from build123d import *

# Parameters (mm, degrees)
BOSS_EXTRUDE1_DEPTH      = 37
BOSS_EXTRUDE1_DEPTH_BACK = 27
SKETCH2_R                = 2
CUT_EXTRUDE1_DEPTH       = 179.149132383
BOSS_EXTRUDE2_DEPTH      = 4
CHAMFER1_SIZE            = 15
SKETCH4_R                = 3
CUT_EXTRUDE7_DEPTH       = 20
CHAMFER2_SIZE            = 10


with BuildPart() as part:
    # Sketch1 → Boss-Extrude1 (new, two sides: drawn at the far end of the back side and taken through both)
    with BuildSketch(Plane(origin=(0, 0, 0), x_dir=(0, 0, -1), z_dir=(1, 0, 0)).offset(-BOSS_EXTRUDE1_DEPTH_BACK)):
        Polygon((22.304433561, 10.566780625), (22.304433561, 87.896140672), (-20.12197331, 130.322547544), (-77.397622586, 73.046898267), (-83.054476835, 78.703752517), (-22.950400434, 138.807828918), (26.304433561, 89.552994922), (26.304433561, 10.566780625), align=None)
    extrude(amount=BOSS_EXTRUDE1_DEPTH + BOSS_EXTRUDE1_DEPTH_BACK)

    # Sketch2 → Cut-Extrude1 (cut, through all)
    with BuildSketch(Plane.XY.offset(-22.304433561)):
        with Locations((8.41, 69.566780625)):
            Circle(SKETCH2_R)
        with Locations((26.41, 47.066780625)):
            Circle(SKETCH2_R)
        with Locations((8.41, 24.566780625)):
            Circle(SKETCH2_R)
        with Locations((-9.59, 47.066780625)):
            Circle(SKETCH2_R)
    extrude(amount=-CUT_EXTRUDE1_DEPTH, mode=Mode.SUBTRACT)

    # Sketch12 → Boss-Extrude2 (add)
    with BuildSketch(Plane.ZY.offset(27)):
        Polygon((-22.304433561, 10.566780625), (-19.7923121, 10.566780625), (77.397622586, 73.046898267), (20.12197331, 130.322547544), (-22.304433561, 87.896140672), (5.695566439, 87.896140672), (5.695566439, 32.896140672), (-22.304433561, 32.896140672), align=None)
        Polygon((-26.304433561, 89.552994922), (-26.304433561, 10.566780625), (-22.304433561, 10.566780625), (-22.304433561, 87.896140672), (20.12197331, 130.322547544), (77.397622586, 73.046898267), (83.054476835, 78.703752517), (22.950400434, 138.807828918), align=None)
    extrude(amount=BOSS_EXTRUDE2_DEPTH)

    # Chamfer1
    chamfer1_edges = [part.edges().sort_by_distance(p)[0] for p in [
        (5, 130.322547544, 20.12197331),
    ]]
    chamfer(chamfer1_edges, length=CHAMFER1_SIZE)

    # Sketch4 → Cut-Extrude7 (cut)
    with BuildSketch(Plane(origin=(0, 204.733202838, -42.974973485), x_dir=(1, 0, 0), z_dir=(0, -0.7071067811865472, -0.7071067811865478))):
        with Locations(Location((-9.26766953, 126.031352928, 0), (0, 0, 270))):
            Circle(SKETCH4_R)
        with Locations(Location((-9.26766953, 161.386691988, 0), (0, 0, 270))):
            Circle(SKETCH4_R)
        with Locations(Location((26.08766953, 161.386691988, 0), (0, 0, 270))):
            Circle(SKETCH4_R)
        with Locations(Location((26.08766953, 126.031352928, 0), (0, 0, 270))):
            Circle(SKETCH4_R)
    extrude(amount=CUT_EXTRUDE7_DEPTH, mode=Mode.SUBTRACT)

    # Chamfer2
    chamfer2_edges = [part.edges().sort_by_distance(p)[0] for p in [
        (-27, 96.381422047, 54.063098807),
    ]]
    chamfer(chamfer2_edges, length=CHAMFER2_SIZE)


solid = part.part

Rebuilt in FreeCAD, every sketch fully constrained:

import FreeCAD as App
import Part
import Sketcher

V = App.Vector
Q = App.Units.Quantity


def edges_at(feature, points):
    """Names of the edges that pass closest to the given points."""
    edges = feature.Shape.Edges
    near = lambda p: min(range(len(edges)), key=lambda i: edges[i].distToShape(Part.Vertex(*p))[0])
    return sorted({f"Edge{near(p) + 1}" for p in points})

doc = App.newDocument("Part")
params = doc.addObject("Spreadsheet::Sheet", "Params")
for row, (alias, value) in enumerate([
    ("sketch1_height", "4 mm"),
    ("sketch1_length", "85 mm"),
    ("sketch1_length2", "8 mm"),
    ("sketch1_length3", "81 mm"),
    ("sketch1_length4", "60 mm"),
    ("pad1_length", "37 mm"),
    ("pad1_length2", "27 mm"),
    ("sketch2_diameter", "4 mm"),
    ("sketch3_width", "55 mm"),
    ("sketch3_height", "28 mm"),
    ("sketch3_length", "8 mm"),
    ("sketch3_length2", "85 mm"),
    ("pad2_length", "4 mm"),
    ("chamfer_size", "15 mm"),
    ("sketch4_diameter", "6 mm"),
    ("pocket2_length", "20 mm"),
    ("chamfer2_size", "10 mm"),
], start=1):
    params.set(f"A{row}", alias)
    params.set(f"B{row}", "=" + value)
    params.setAlias(f"B{row}", alias)

body = doc.addObject("PartDesign::Body", "Body")

# Sketch on YZ plane
sketch1 = body.newObject("Sketcher::SketchObject", "Sketch")
sketch1.AttachmentSupport = (doc.getObject("YZ_Plane"), [""])
sketch1.MapMode = "FlatFace"
sketch1.addGeometry(Part.LineSegment(V(87.896141, -22.304434, 0), V(10.566781, -22.304434, 0)), False)
sketch1.addGeometry(Part.LineSegment(V(10.566781, -22.304434, 0), V(10.566781, -26.304434, 0)), False)
sketch1.addGeometry(Part.LineSegment(V(10.566781, -26.304434, 0), V(89.552995, -26.304434, 0)), False)
sketch1.addGeometry(Part.LineSegment(V(89.552995, -26.304434, 0), V(138.807829, 22.9504, 0)), False)
sketch1.addGeometry(Part.LineSegment(V(138.807829, 22.9504, 0), V(78.703753, 83.054477, 0)), False)
sketch1.addGeometry(Part.LineSegment(V(78.703753, 83.054477, 0), V(73.046898, 77.397623, 0)), False)
sketch1.addGeometry(Part.LineSegment(V(73.046898, 77.397623, 0), V(130.322548, 20.121973, 0)), False)
sketch1.addGeometry(Part.LineSegment(V(130.322548, 20.121973, 0), V(87.896141, -22.304434, 0)), False)
sketch1.addConstraint(Sketcher.Constraint("Coincident", 0, 2, 1, 1))
sketch1.addConstraint(Sketcher.Constraint("Coincident", 1, 2, 2, 1))
sketch1.addConstraint(Sketcher.Constraint("Coincident", 2, 2, 3, 1))
sketch1.addConstraint(Sketcher.Constraint("Coincident", 3, 2, 4, 1))
sketch1.addConstraint(Sketcher.Constraint("Coincident", 4, 2, 5, 1))
sketch1.addConstraint(Sketcher.Constraint("Coincident", 5, 2, 6, 1))
sketch1.addConstraint(Sketcher.Constraint("Coincident", 6, 2, 7, 1))
sketch1.addConstraint(Sketcher.Constraint("Coincident", 7, 2, 0, 1))
sketch1.addConstraint(Sketcher.Constraint("Horizontal", 0))
sketch1.addConstraint(Sketcher.Constraint("Vertical", 1))
sketch1.addConstraint(Sketcher.Constraint("Horizontal", 2))
sketch1.addConstraint(Sketcher.Constraint("Perpendicular", 3, 4))
sketch1.addConstraint(Sketcher.Constraint("Perpendicular", 4, 5))
sketch1.addConstraint(Sketcher.Constraint("Perpendicular", 5, 6))
sketch1.addConstraint(Sketcher.Constraint("Perpendicular", 6, 7))
sketch1.addConstraint(Sketcher.Constraint("DistanceY", 1, 2, 1, 1, Q("4 mm")))
sketch1.addConstraint(Sketcher.Constraint("Angle", 3, Q("45 deg")))
sketch1.addConstraint(Sketcher.Constraint("Distance", 4, Q("85 mm")))
sketch1.addConstraint(Sketcher.Constraint("Distance", 5, Q("8 mm")))
sketch1.addConstraint(Sketcher.Constraint("Distance", 6, Q("81 mm")))
sketch1.addConstraint(Sketcher.Constraint("Distance", 7, Q("60 mm")))
sketch1.addConstraint(Sketcher.Constraint("DistanceX", 0, 2, 0, 1, Q("77.32936 mm")))
sketch1.addConstraint(Sketcher.Constraint("DistanceY", -1, 1, 3, 2, Q("22.9504 mm")))
sketch1.addConstraint(Sketcher.Constraint("DistanceX", -1, 1, 5, 2, Q("73.046898 mm")))
sketch1.setExpression("Constraints[15]", "Params.sketch1_height")
sketch1.setExpression("Constraints[17]", "Params.sketch1_length")
sketch1.setExpression("Constraints[18]", "Params.sketch1_length2")
sketch1.setExpression("Constraints[19]", "Params.sketch1_length3")
sketch1.setExpression("Constraints[20]", "Params.sketch1_length4")
pad1 = body.newObject("PartDesign::Pad", "Pad")
pad1.Profile = sketch1
pad1.Type = "TwoLengths"
pad1.setExpression("Length", "Params.pad1_length")
pad1.setExpression("Length2", "Params.pad1_length2")

# Sketch on XY plane
sketch2 = body.newObject("Sketcher::SketchObject", "Sketch001")
sketch2.AttachmentSupport = (doc.getObject("XY_Plane"), [""])
sketch2.MapMode = "FlatFace"
sketch2.AttachmentOffset = App.Placement(V(0, 0, -22.304434), App.Rotation())
sketch2.addGeometry(Part.Circle(V(8.41, 69.566781, 0), V(0, 0, 1), 2), False)
sketch2.addGeometry(Part.Circle(V(26.41, 47.066781, 0), V(0, 0, 1), 2), False)
sketch2.addGeometry(Part.Circle(V(8.41, 24.566781, 0), V(0, 0, 1), 2), False)
sketch2.addGeometry(Part.Circle(V(-9.59, 47.066781, 0), V(0, 0, 1), 2), False)
sketch2.addConstraint(Sketcher.Constraint("Equal", 0, 1))
sketch2.addConstraint(Sketcher.Constraint("Equal", 1, 2))
sketch2.addConstraint(Sketcher.Constraint("Equal", 2, 3))
sketch2.addConstraint(Sketcher.Constraint("Horizontal", 1, 3, 3, 3))
sketch2.addConstraint(Sketcher.Constraint("Vertical", 0, 3, 2, 3))
sketch2.addConstraint(Sketcher.Constraint("Diameter", 0, Q("4 mm")))
sketch2.addConstraint(Sketcher.Constraint("DistanceX", 0, 3, 1, 3, Q("18 mm")))
sketch2.addConstraint(Sketcher.Constraint("DistanceY", 2, 3, 0, 3, Q("45 mm")))
sketch2.addConstraint(Sketcher.Constraint("DistanceX", 3, 3, 2, 3, Q("18 mm")))
sketch2.addConstraint(Sketcher.Constraint("DistanceY", 1, 3, 0, 3, Q("22.5 mm")))
sketch2.addConstraint(Sketcher.Constraint("DistanceX", -1, 1, 0, 3, Q("8.41 mm")))
sketch2.addConstraint(Sketcher.Constraint("DistanceY", -1, 1, 0, 3, Q("69.566781 mm")))
sketch2.setExpression("Constraints[5]", "Params.sketch2_diameter")
pocket1 = body.newObject("PartDesign::Pocket", "Pocket")
pocket1.Profile = sketch2
pocket1.Type = "ThroughAll"

# Sketch on YZ plane
sketch3 = body.newObject("Sketcher::SketchObject", "Sketch002")
sketch3.AttachmentSupport = (doc.getObject("YZ_Plane"), [""])
sketch3.MapMode = "FlatFace"
sketch3.AttachmentOffset = App.Placement(V(0, 0, -27), App.Rotation())
sketch3.addGeometry(Part.LineSegment(V(10.566781, -19.792312, 0), V(73.046898, 77.397623, 0)), False)
sketch3.addGeometry(Part.LineSegment(V(73.046898, 77.397623, 0), V(78.703753, 83.054477, 0)), False)
sketch3.addGeometry(Part.LineSegment(V(78.703753, 83.054477, 0), V(138.807829, 22.9504, 0)), False)
sketch3.addGeometry(Part.LineSegment(V(138.807829, 22.9504, 0), V(89.552995, -26.304434, 0)), False)
sketch3.addGeometry(Part.LineSegment(V(89.552995, -26.304434, 0), V(10.566781, -26.304434, 0)), False)
sketch3.addGeometry(Part.LineSegment(V(10.566781, -26.304434, 0), V(10.566781, -19.792312, 0)), False)
sketch3.addGeometry(Part.LineSegment(V(87.896141, -22.304434, 0), V(87.896141, 5.695566, 0)), False)
sketch3.addGeometry(Part.LineSegment(V(87.896141, 5.695566, 0), V(32.896141, 5.695566, 0)), False)
sketch3.addGeometry(Part.LineSegment(V(32.896141, 5.695566, 0), V(32.896141, -22.304434, 0)), False)
sketch3.addGeometry(Part.LineSegment(V(32.896141, -22.304434, 0), V(87.896141, -22.304434, 0)), False)
sketch3.addConstraint(Sketcher.Constraint("Coincident", 0, 2, 1, 1))
sketch3.addConstraint(Sketcher.Constraint("Coincident", 1, 2, 2, 1))
sketch3.addConstraint(Sketcher.Constraint("Coincident", 2, 2, 3, 1))
sketch3.addConstraint(Sketcher.Constraint("Coincident", 3, 2, 4, 1))
sketch3.addConstraint(Sketcher.Constraint("Coincident", 4, 2, 5, 1))
sketch3.addConstraint(Sketcher.Constraint("Coincident", 5, 2, 0, 1))
sketch3.addConstraint(Sketcher.Constraint("Coincident", 6, 2, 7, 1))
sketch3.addConstraint(Sketcher.Constraint("Coincident", 7, 2, 8, 1))
sketch3.addConstraint(Sketcher.Constraint("Coincident", 8, 2, 9, 1))
sketch3.addConstraint(Sketcher.Constraint("Coincident", 9, 2, 6, 1))
sketch3.addConstraint(Sketcher.Constraint("Horizontal", 4))
sketch3.addConstraint(Sketcher.Constraint("Vertical", 5))
sketch3.addConstraint(Sketcher.Constraint("Vertical", 6))
sketch3.addConstraint(Sketcher.Constraint("Horizontal", 7))
sketch3.addConstraint(Sketcher.Constraint("Vertical", 8))
sketch3.addConstraint(Sketcher.Constraint("Horizontal", 9))
sketch3.addConstraint(Sketcher.Constraint("Perpendicular", 1, 2))
sketch3.addConstraint(Sketcher.Constraint("Perpendicular", 2, 3))
sketch3.addConstraint(Sketcher.Constraint("DistanceX", 7, 2, 7, 1, Q("55 mm")))
sketch3.addConstraint(Sketcher.Constraint("DistanceY", 6, 1, 6, 2, Q("28 mm")))
sketch3.addConstraint(Sketcher.Constraint("Angle", 1, Q("45 deg")))
sketch3.addConstraint(Sketcher.Constraint("Distance", 1, Q("8 mm")))
sketch3.addConstraint(Sketcher.Constraint("Distance", 2, Q("85 mm")))
sketch3.addConstraint(Sketcher.Constraint("DistanceY", 3, 2, 6, 2, Q("32 mm")))
sketch3.addConstraint(Sketcher.Constraint("DistanceY", 5, 1, 5, 2, Q("6.512121 mm")))
sketch3.addConstraint(Sketcher.Constraint("DistanceX", -1, 1, 0, 2, Q("73.046898 mm")))
sketch3.addConstraint(Sketcher.Constraint("DistanceY", -1, 1, 2, 2, Q("22.9504 mm")))
sketch3.addConstraint(Sketcher.Constraint("Distance", 0, Q("115.540679 mm")))
sketch3.addConstraint(Sketcher.Constraint("DistanceX", 4, 2, 4, 1, Q("78.986214 mm")))
sketch3.addConstraint(Sketcher.Constraint("DistanceX", -1, 1, 6, 2, Q("87.896141 mm")))
sketch3.setExpression("Constraints[18]", "Params.sketch3_width")
sketch3.setExpression("Constraints[19]", "Params.sketch3_height")
sketch3.setExpression("Constraints[21]", "Params.sketch3_length")
sketch3.setExpression("Constraints[22]", "Params.sketch3_length2")
pad2 = body.newObject("PartDesign::Pad", "Pad001")
pad2.Profile = sketch3
pad2.setExpression("Length", "Params.pad2_length")
pad2.Reversed = True
doc.recompute()

chamfer = body.newObject("PartDesign::Chamfer", "Chamfer")
chamfer.Base = (pad2, edges_at(pad2, [(5, 130.323, 20.122)]))
chamfer.setExpression("Size", "Params.chamfer_size")

# Sketch on an angled plane
sketch4 = body.newObject("Sketcher::SketchObject", "Sketch003")
sketch4.Placement = App.Placement(V(0, 204.733203, -42.974973), App.Rotation(V(1, 0, 0), V(0, -0.707106781, 0.707106781), V(0, -0.707106781, -0.707106781), "ZXY"))
sketch4.addGeometry(Part.Circle(V(-9.26767, 126.031353, 0), V(0, 0, 1), 3), False)
sketch4.addGeometry(Part.Circle(V(-9.26767, 161.386692, 0), V(0, 0, 1), 3), False)
sketch4.addGeometry(Part.Circle(V(26.08767, 161.386692, 0), V(0, 0, 1), 3), False)
sketch4.addGeometry(Part.Circle(V(26.08767, 126.031353, 0), V(0, 0, 1), 3), False)
sketch4.addConstraint(Sketcher.Constraint("Equal", 0, 1))
sketch4.addConstraint(Sketcher.Constraint("Equal", 1, 2))
sketch4.addConstraint(Sketcher.Constraint("Equal", 2, 3))
sketch4.addConstraint(Sketcher.Constraint("Horizontal", 1, 3, 2, 3))
sketch4.addConstraint(Sketcher.Constraint("Horizontal", 0, 3, 3, 3))
sketch4.addConstraint(Sketcher.Constraint("Vertical", 0, 3, 1, 3))
sketch4.addConstraint(Sketcher.Constraint("Vertical", 2, 3, 3, 3))
sketch4.addConstraint(Sketcher.Constraint("Diameter", 0, Q("6 mm")))
sketch4.addConstraint(Sketcher.Constraint("DistanceX", 0, 3, -1, 1, Q("9.26767 mm")))
sketch4.addConstraint(Sketcher.Constraint("DistanceY", -1, 1, 1, 3, Q("161.386692 mm")))
sketch4.addConstraint(Sketcher.Constraint("DistanceX", -1, 1, 2, 3, Q("26.08767 mm")))
sketch4.addConstraint(Sketcher.Constraint("DistanceY", 0, 3, 1, 3, Q("35.355339 mm")))
sketch4.setExpression("Constraints[7]", "Params.sketch4_diameter")
pocket2 = body.newObject("PartDesign::Pocket", "Pocket001")
pocket2.Profile = sketch4
pocket2.setExpression("Length", "Params.pocket2_length")
pocket2.Reversed = True
doc.recompute()

chamfer2 = body.newObject("PartDesign::Chamfer", "Chamfer001")
chamfer2.Base = (pocket2, edges_at(pocket2, [(-27, 96.381, 54.063)]))
chamfer2.setExpression("Size", "Params.chamfer2_size")

doc.recompute()
